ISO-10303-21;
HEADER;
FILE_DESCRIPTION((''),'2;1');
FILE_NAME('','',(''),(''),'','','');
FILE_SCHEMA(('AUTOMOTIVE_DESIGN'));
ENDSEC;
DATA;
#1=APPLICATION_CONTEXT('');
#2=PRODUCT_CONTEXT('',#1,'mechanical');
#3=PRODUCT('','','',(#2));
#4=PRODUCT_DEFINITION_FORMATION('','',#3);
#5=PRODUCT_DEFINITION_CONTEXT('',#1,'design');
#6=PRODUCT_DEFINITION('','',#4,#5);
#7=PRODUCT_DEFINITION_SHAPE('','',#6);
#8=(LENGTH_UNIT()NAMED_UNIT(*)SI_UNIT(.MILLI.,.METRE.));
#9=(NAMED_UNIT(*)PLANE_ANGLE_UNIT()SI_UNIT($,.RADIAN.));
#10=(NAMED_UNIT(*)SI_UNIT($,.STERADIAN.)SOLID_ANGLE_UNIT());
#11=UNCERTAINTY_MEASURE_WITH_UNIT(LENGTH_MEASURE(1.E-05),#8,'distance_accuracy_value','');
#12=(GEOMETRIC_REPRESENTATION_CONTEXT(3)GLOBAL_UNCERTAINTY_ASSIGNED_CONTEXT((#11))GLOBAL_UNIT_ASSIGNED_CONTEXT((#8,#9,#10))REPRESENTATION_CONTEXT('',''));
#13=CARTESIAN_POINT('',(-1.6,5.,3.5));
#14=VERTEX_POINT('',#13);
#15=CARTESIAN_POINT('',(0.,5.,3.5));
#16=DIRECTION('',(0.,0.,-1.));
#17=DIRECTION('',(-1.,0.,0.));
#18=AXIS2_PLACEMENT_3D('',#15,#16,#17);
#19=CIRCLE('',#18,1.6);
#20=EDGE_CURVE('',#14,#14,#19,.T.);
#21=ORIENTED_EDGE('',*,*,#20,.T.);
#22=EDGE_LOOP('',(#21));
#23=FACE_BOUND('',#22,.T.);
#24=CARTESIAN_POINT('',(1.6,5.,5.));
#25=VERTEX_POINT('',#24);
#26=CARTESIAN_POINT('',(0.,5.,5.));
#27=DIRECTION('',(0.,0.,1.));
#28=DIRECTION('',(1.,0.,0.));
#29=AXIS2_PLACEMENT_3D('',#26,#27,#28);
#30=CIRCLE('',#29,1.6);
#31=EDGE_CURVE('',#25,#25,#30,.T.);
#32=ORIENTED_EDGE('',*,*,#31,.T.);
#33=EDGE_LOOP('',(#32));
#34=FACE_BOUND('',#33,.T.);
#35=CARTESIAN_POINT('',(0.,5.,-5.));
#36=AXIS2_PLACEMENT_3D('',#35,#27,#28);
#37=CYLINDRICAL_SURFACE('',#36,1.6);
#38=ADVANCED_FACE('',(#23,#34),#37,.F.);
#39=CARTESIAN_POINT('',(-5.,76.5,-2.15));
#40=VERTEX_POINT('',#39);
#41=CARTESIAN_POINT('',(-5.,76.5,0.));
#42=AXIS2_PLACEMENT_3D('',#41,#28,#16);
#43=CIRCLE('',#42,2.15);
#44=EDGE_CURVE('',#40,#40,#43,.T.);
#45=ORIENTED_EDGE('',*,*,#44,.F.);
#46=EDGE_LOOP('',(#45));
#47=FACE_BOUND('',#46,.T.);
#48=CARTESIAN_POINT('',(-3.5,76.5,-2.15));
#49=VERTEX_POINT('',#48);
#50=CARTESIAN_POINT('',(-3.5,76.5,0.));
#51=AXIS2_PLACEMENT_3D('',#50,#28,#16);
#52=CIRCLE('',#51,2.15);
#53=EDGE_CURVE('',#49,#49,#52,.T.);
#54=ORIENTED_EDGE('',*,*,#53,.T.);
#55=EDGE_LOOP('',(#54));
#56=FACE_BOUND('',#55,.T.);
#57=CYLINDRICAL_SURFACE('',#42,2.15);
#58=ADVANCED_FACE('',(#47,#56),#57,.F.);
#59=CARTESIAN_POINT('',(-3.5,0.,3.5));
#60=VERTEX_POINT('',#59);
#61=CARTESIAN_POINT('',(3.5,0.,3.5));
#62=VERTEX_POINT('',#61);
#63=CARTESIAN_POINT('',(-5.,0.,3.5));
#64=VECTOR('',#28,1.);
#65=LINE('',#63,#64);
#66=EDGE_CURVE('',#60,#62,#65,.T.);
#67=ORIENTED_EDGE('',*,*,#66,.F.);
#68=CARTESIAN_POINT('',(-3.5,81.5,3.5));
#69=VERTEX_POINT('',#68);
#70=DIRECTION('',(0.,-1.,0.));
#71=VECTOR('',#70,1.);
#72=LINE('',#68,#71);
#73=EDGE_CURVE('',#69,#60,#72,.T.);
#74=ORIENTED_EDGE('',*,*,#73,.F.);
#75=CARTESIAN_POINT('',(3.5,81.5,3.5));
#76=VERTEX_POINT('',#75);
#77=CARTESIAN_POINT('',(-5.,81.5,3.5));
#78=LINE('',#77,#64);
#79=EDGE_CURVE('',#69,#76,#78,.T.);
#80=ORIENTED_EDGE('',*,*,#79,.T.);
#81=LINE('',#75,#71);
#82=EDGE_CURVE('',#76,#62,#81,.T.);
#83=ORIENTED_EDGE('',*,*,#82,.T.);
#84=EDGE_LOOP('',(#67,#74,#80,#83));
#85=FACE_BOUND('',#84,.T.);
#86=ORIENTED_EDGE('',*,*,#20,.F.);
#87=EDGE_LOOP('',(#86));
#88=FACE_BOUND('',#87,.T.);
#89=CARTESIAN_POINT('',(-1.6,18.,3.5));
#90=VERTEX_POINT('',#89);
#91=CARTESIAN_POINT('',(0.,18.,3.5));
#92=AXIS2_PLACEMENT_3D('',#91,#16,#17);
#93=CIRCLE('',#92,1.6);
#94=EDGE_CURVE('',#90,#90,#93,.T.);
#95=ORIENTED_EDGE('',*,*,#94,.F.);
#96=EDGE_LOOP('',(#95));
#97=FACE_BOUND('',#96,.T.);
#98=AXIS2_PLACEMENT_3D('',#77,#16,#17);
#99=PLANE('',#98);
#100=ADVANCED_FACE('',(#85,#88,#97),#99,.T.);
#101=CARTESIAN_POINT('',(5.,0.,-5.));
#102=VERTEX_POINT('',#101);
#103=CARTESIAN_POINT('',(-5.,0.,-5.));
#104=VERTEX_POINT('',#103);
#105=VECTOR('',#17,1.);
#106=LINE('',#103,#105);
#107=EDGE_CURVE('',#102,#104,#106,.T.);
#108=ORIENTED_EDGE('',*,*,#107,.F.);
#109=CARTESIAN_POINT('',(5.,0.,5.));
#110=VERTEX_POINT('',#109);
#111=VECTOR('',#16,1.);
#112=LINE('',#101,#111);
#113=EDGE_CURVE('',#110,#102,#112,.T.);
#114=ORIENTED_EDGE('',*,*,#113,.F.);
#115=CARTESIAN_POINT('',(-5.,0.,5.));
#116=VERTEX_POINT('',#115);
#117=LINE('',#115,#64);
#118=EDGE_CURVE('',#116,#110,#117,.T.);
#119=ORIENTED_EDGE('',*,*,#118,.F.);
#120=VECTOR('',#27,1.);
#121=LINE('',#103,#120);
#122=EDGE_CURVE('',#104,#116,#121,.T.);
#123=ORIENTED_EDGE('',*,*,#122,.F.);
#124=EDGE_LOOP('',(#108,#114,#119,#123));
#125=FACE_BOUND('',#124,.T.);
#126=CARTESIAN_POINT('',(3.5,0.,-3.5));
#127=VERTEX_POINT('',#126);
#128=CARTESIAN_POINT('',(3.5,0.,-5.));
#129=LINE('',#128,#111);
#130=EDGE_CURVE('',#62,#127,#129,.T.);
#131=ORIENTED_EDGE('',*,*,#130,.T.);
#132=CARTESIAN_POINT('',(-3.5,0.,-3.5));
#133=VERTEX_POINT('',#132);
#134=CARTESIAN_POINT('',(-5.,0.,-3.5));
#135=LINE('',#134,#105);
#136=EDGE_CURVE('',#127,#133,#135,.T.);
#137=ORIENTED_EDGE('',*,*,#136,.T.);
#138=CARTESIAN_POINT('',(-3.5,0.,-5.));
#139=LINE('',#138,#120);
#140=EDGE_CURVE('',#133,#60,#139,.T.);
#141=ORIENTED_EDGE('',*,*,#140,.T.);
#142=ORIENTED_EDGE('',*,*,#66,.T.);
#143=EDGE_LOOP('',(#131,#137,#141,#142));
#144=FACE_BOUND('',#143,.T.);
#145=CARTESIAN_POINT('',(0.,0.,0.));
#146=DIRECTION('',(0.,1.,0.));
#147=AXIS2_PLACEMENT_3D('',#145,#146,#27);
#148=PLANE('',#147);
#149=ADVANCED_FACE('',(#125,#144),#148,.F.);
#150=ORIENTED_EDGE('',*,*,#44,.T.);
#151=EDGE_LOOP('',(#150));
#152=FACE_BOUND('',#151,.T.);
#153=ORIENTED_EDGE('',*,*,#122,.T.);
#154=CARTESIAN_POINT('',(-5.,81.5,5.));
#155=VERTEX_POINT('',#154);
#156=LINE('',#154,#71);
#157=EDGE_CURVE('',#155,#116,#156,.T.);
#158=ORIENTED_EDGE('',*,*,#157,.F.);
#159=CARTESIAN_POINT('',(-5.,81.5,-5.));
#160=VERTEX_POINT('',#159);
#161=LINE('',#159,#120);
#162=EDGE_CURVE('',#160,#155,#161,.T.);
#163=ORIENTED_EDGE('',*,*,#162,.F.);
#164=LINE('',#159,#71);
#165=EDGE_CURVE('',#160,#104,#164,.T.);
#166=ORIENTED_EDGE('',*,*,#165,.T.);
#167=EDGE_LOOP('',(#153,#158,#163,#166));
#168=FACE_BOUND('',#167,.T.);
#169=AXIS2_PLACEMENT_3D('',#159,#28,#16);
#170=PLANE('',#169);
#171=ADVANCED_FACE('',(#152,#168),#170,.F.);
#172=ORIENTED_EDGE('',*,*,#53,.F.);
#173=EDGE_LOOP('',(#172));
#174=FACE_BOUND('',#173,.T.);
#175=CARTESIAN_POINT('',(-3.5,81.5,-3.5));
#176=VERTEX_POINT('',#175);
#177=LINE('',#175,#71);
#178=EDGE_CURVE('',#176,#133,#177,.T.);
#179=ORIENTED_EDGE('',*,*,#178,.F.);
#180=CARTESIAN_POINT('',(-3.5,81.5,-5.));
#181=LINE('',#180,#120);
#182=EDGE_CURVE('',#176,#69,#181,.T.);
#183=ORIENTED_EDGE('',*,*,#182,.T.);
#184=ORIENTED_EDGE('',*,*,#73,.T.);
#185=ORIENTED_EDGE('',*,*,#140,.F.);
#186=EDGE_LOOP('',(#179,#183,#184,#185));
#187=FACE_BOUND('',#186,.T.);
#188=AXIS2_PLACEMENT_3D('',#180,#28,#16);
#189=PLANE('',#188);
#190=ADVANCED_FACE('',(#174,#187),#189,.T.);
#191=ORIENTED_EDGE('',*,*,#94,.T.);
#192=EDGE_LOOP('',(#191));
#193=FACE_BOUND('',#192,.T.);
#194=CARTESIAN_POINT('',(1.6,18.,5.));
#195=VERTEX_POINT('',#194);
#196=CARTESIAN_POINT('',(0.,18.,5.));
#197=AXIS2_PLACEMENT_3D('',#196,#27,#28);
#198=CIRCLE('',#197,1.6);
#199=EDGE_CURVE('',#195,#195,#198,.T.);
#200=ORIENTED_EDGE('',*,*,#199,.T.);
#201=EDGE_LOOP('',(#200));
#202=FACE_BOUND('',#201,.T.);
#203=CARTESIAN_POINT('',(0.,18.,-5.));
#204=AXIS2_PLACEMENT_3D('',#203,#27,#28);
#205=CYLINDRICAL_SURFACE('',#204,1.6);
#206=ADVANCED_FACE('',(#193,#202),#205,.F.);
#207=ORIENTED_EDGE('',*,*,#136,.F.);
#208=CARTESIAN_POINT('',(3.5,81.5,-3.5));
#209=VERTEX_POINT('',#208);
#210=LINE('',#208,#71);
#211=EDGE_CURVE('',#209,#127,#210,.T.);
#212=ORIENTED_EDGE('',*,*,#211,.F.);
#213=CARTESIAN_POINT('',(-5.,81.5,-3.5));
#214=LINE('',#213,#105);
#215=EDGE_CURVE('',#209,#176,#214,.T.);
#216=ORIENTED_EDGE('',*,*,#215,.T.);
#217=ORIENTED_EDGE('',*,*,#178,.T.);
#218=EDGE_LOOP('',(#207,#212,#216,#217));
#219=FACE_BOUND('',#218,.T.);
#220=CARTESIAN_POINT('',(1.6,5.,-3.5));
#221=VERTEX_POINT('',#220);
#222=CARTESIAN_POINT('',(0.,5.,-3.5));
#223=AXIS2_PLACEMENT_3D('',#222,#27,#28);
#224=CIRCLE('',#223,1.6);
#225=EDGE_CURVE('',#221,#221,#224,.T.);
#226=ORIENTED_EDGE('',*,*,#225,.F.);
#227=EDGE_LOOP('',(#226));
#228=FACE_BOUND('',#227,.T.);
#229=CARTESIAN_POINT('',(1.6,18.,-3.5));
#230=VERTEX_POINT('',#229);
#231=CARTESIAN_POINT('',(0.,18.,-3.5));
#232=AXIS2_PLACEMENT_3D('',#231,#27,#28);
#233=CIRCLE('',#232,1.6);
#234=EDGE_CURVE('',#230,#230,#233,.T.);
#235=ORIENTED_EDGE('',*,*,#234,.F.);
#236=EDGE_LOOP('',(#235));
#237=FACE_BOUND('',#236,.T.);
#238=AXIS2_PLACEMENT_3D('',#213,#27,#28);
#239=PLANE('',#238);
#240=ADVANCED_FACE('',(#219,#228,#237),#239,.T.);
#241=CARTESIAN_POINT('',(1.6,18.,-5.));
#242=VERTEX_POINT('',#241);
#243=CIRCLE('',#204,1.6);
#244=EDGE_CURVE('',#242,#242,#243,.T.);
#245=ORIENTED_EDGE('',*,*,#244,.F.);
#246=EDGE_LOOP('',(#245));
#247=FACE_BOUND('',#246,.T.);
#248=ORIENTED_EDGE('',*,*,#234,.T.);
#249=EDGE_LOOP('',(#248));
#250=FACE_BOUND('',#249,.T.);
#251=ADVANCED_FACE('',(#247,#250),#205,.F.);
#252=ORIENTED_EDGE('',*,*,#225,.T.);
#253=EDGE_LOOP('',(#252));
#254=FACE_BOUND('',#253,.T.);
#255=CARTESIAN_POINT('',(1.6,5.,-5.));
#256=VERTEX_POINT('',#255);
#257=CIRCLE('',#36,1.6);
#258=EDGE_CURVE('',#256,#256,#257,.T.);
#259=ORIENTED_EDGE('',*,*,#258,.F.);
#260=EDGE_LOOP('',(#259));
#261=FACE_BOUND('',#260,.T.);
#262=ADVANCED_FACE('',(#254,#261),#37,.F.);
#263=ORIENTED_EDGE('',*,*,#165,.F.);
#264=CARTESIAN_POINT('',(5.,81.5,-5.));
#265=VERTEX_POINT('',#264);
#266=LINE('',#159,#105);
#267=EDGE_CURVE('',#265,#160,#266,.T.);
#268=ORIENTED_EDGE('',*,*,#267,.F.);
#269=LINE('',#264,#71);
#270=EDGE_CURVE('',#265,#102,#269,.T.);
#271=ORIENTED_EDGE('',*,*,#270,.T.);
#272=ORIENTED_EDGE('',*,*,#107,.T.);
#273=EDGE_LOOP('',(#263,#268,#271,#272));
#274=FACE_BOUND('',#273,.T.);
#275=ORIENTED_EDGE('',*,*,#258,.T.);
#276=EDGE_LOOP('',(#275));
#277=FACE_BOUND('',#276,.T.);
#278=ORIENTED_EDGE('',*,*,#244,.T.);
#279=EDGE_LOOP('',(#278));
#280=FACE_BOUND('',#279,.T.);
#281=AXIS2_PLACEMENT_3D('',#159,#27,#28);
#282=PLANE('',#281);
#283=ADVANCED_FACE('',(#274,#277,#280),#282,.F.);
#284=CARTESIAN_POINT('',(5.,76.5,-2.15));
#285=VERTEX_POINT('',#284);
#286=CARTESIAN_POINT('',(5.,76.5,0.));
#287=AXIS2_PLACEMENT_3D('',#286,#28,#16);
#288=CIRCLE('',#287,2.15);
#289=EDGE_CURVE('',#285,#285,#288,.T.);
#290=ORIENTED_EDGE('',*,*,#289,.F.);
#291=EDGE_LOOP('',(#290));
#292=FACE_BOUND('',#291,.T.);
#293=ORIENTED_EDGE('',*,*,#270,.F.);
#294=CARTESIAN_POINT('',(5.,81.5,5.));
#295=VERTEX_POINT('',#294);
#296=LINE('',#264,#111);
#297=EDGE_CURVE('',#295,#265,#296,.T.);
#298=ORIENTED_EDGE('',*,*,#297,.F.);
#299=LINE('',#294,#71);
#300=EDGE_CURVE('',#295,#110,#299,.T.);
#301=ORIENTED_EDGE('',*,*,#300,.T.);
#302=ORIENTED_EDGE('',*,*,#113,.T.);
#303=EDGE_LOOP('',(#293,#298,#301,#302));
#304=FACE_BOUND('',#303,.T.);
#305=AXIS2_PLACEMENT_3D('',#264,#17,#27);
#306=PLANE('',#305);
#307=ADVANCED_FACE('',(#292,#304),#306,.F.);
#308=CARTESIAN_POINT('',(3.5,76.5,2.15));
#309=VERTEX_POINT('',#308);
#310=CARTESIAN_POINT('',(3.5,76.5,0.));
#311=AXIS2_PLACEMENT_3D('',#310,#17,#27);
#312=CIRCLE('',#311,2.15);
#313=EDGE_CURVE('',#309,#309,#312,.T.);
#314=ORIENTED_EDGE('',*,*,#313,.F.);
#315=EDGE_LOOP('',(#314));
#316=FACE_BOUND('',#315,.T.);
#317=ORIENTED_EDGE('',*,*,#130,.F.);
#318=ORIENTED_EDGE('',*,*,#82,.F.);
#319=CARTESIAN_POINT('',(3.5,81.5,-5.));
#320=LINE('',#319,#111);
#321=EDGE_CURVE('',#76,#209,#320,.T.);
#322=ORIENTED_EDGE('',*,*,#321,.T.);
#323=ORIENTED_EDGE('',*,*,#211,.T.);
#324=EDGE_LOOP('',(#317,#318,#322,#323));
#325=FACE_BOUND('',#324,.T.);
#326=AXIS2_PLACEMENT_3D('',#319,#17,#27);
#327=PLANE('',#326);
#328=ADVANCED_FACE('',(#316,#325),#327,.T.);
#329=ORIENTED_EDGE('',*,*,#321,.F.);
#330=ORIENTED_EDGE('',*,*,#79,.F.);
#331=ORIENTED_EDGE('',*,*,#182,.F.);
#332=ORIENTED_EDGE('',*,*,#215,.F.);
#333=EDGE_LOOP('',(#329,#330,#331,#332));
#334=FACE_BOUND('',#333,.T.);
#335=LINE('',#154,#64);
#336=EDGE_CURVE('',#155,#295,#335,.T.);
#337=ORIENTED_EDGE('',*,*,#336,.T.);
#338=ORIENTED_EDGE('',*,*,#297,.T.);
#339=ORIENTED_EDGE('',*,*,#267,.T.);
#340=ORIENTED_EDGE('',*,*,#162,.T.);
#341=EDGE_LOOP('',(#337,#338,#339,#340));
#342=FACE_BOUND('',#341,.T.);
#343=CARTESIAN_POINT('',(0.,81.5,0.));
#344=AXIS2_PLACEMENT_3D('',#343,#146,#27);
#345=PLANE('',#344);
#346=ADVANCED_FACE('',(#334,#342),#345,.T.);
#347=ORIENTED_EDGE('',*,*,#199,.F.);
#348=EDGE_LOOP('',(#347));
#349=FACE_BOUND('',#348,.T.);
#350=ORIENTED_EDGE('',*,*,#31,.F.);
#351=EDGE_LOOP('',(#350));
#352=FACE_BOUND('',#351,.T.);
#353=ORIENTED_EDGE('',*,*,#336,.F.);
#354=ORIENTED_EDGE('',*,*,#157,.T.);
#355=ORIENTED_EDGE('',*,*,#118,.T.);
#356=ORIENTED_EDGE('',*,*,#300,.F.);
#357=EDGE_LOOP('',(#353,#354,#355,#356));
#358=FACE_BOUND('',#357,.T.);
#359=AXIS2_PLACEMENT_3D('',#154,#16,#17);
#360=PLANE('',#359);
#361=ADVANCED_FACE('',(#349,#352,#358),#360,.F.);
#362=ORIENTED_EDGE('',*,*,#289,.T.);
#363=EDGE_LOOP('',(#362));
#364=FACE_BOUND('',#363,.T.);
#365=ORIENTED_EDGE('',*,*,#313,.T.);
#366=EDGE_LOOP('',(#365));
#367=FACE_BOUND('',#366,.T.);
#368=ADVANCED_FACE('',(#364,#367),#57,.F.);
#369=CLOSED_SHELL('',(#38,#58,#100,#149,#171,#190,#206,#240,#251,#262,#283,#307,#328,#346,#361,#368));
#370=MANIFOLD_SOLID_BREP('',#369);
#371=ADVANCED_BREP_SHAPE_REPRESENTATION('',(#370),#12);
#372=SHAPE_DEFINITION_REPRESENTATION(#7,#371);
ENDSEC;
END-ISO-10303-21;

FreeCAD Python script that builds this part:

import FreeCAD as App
import Part
import Sketcher
Q = App.Units.Quantity


def add_polygon(sketch, points):
    """Adds a closed chain of lines whose ends are joined by coincident constraints."""
    first, n = sketch.GeometryCount, len(points)
    for a, b in zip(points, points[1:] + points[:1]):
        sketch.addGeometry(Part.LineSegment(App.Vector(*a, 0), App.Vector(*b, 0)), False)
    for i in range(n):
        sketch.addConstraint(Sketcher.Constraint("Coincident", first + i, 2, first + (i + 1) % n, 1))

doc = App.newDocument("Part")
body = doc.addObject("PartDesign::Body", "Body")

sketch1 = doc.addObject("Sketcher::SketchObject", "Sketch")
body.addObject(sketch1)
sketch1.AttachmentSupport = (doc.XZ_Plane, [""])
sketch1.MapMode = "FlatFace"
add_polygon(sketch1, [(-5, -5), (-5, 5), (5, 5), (5, -5)])
add_polygon(sketch1, [(3.5, 3.5), (-3.5, 3.5), (-3.5, -3.5), (3.5, -3.5)])
sketch1.addConstraint([
    Sketcher.Constraint("Vertical", 0),
    Sketcher.Constraint("Horizontal", 1),
    Sketcher.Constraint("Vertical", 2),
    Sketcher.Constraint("Horizontal", 3),
    Sketcher.Constraint("Horizontal", 4),
    Sketcher.Constraint("Vertical", 5),
    Sketcher.Constraint("Horizontal", 6),
    Sketcher.Constraint("Vertical", 7),
    Sketcher.Constraint("Symmetric", 0, 2, 2, 2, -1, 1),
    Sketcher.Constraint("Symmetric", 4, 2, 6, 2, -1, 1),
    Sketcher.Constraint("Equal", 3, 0),
    Sketcher.Constraint("Equal", 6, 5),
    Sketcher.Constraint("DistanceX", 1, 1, 1, 2, Q("10 mm")),
    Sketcher.Constraint("DistanceX", 4, 2, 4, 1, Q("7 mm")),
])
pad1 = doc.addObject("PartDesign::Pad", "Pad")
body.addObject(pad1)
pad1.Profile = sketch1
pad1.Length = 81.5
pad1.Reversed = True

sketch2 = doc.addObject("Sketcher::SketchObject", "Sketch001")
body.addObject(sketch2)
sketch2.AttachmentSupport = (doc.XY_Plane, [""])
sketch2.MapMode = "FlatFace"
sketch2.AttachmentOffset = App.Placement(App.Vector(0, 0, 5), App.Rotation())
sketch2.addGeometry([
    Part.Circle(App.Vector(0, 18, 0), App.Vector(0, 0, 1), 1.6),
    Part.Circle(App.Vector(0, 5, 0), App.Vector(0, 0, 1), 1.6),
], False)
sketch2.addConstraint([
    Sketcher.Constraint("Equal", 0, 1),
    Sketcher.Constraint("PointOnObject", 0, 3, -2),
    Sketcher.Constraint("PointOnObject", 1, 3, -2),
    Sketcher.Constraint("Diameter", 0, Q("3.2 mm")),
    Sketcher.Constraint("DistanceY", -1, 1, 0, 3, Q("18 mm")),
    Sketcher.Constraint("DistanceY", -1, 1, 1, 3, Q("5 mm")),
])
pocket1 = doc.addObject("PartDesign::Pocket", "Pocket")
body.addObject(pocket1)
pocket1.Profile = sketch2
pocket1.Type = "ThroughAll"

sketch3 = doc.addObject("Sketcher::SketchObject", "Sketch002")
body.addObject(sketch3)
sketch3.AttachmentSupport = (doc.YZ_Plane, [""])
sketch3.MapMode = "FlatFace"
sketch3.AttachmentOffset = App.Placement(App.Vector(0, 0, 5), App.Rotation())
sketch3.addGeometry(Part.Circle(App.Vector(76.5, 0, 0), App.Vector(0, 0, 1), 2.15), False)
sketch3.addConstraint([
    Sketcher.Constraint("PointOnObject", 0, 3, -1),
    Sketcher.Constraint("Diameter", 0, Q("4.3 mm")),
    Sketcher.Constraint("DistanceX", -1, 1, 0, 3, Q("76.5 mm")),
])
pocket2 = doc.addObject("PartDesign::Pocket", "Pocket001")
body.addObject(pocket2)
pocket2.Profile = sketch3
pocket2.Type = "ThroughAll"

doc.recompute()
